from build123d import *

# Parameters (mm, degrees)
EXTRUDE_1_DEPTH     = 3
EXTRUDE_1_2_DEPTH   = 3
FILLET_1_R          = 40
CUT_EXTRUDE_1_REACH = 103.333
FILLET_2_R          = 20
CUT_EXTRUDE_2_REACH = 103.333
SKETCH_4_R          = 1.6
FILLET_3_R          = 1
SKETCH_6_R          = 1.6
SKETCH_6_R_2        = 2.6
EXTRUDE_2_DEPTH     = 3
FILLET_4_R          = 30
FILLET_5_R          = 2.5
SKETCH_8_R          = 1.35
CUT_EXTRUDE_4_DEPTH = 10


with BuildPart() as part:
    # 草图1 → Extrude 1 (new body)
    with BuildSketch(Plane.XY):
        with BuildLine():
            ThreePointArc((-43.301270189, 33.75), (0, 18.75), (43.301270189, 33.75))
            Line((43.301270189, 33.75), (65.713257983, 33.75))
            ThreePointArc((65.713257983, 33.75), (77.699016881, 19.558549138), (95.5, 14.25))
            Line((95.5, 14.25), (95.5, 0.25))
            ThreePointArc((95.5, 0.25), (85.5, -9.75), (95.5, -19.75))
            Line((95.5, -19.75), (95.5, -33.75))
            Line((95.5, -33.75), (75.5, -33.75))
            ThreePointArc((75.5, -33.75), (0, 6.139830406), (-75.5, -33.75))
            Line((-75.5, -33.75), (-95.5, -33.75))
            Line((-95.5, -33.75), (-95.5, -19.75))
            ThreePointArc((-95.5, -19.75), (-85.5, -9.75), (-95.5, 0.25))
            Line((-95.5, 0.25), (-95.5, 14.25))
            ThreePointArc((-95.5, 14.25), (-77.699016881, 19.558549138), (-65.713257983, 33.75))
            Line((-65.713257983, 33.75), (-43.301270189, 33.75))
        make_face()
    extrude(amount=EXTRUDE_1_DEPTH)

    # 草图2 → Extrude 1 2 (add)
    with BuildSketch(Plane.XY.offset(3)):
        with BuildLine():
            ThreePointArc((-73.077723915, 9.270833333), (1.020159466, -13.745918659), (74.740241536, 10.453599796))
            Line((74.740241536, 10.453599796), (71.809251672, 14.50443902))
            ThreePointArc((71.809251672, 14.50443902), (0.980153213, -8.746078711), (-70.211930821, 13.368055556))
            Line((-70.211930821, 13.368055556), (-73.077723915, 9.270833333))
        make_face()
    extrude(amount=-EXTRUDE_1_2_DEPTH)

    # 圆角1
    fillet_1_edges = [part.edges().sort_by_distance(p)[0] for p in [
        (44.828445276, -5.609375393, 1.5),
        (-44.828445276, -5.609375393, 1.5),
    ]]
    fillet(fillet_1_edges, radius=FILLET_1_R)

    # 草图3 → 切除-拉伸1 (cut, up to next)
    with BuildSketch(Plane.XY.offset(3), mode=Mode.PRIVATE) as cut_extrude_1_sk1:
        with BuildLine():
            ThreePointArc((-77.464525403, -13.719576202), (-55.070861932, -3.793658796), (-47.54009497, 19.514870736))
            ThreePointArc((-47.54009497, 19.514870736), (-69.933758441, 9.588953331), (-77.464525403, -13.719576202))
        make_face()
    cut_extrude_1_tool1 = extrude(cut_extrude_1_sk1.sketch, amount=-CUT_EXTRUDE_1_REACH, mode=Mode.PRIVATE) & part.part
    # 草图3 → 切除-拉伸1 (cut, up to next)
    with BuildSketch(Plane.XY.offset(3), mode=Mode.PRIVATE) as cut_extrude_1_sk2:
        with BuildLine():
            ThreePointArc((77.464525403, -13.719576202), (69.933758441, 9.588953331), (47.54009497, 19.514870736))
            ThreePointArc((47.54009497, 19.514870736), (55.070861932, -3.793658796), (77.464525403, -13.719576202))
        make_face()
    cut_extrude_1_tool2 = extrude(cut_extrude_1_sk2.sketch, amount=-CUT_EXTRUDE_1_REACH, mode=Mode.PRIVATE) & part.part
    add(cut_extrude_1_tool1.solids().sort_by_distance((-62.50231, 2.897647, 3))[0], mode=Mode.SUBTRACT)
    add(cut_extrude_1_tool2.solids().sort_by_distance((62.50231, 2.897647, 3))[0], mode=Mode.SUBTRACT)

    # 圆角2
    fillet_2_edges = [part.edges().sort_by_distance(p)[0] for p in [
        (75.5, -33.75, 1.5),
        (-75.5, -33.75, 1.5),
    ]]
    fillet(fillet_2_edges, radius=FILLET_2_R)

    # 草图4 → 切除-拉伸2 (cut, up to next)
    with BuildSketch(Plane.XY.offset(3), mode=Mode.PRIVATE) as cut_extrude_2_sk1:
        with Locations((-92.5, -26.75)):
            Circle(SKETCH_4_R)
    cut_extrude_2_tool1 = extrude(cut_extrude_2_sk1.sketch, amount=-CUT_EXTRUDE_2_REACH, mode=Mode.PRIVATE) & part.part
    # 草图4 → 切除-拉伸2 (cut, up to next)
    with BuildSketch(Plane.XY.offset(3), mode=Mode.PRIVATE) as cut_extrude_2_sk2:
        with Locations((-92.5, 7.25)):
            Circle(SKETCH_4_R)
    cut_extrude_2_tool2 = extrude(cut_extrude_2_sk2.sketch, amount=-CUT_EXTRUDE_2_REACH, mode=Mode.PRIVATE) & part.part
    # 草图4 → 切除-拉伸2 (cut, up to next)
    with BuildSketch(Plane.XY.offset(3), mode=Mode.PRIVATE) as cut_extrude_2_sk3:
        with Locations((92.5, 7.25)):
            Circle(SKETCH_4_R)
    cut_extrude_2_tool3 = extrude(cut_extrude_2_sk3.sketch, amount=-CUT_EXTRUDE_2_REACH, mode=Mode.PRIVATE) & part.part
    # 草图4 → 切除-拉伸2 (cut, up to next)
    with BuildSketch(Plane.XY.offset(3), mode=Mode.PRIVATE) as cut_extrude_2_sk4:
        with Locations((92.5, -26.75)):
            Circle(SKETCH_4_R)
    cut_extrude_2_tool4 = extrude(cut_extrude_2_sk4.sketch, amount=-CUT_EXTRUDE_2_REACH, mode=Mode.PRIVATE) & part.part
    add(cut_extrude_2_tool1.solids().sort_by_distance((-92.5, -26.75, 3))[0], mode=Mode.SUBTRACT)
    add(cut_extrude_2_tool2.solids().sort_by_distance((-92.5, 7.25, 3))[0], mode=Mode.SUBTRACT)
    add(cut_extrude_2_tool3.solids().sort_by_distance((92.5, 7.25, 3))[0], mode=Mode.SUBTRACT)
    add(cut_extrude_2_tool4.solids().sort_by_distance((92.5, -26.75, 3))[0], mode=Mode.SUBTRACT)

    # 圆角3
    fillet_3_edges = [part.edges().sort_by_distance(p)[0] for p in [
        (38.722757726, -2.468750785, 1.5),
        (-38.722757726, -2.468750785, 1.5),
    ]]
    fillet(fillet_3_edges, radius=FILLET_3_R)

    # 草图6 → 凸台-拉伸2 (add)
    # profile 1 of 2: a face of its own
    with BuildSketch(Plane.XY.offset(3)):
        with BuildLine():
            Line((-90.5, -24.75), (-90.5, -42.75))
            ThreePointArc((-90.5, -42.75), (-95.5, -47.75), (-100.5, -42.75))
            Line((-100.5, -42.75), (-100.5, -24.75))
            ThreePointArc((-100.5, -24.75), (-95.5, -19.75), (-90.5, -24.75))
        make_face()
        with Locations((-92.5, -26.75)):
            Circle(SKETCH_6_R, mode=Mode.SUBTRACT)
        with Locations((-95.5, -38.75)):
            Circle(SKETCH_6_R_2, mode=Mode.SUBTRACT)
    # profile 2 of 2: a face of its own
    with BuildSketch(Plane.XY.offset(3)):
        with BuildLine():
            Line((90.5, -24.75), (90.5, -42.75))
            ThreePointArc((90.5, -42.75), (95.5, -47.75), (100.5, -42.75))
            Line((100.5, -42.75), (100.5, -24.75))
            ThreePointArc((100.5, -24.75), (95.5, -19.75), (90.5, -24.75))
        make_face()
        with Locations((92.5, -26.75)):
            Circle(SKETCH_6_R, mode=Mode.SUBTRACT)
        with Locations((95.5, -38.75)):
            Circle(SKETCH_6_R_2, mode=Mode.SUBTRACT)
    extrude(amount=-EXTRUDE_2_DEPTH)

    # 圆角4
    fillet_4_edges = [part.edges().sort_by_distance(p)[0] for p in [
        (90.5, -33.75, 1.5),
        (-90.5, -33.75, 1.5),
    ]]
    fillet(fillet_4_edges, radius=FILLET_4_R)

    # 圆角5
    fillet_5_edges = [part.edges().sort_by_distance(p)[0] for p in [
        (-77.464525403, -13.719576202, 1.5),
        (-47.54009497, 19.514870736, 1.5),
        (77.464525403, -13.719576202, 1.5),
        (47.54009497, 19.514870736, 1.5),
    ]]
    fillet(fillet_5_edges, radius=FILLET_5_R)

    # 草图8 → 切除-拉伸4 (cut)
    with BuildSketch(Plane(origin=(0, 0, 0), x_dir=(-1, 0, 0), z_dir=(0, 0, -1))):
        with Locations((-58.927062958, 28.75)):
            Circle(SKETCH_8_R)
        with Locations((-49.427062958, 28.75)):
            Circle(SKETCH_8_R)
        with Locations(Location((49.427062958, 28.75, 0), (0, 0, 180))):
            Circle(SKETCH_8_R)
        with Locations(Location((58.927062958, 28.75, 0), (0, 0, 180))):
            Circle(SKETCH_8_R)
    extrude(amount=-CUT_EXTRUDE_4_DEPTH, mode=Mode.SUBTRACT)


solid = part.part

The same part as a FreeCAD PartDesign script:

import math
import FreeCAD as App
import Part
import Sketcher


def edges_at(feature, points):
    """Names of the edges that pass closest to the given points."""
    edges = feature.Shape.Edges
    near = lambda p: min(range(len(edges)), key=lambda i: edges[i].distToShape(Part.Vertex(*p))[0])
    return sorted({f"Edge{near(p) + 1}" for p in points})

doc = App.newDocument("Part")
body = doc.addObject("PartDesign::Body", "Body")

# Sketch on XY plane
sketch1 = body.newObject("Sketcher::SketchObject", "Sketch")
sketch1.AttachmentSupport = (doc.getObject("XY_Plane"), [""])
sketch1.MapMode = "FlatFace"
sketch1.addGeometry([
    Part.ArcOfCircle(Part.Circle(App.Vector(0, 89, 0), App.Vector(0, 0, 1), 70), math.radians(-128), math.radians(-52)),  # 0
    Part.LineSegment(App.Vector(-43, 34, 0), App.Vector(-66, 34, 0)),  # 1
    Part.ArcOfCircle(Part.Circle(App.Vector(-96, 47, 0), App.Vector(0, 0, 1), 33), math.radians(-90), math.radians(-24)),  # 2
    Part.LineSegment(App.Vector(-96, 14, 0), App.Vector(-96, 0, 0)),  # 3
    Part.ArcOfCircle(Part.Circle(App.Vector(-96, -10, 0), App.Vector(0, 0, 1), 10), math.radians(-90), math.radians(90)),  # 4
    Part.LineSegment(App.Vector(-96, -20, 0), App.Vector(-96, -34, 0)),  # 5
    Part.LineSegment(App.Vector(-96, -34, 0), App.Vector(-76, -34, 0)),  # 6
    Part.ArcOfCircle(Part.Circle(App.Vector(0, -85, 0), App.Vector(0, 0, 1), 91), math.radians(34), math.radians(146)),  # 7
    Part.LineSegment(App.Vector(76, -34, 0), App.Vector(96, -34, 0)),  # 8
    Part.LineSegment(App.Vector(96, -34, 0), App.Vector(96, -20, 0)),  # 9
    Part.ArcOfCircle(Part.Circle(App.Vector(96, -10, 0), App.Vector(0, 0, 1), 10), math.radians(90), math.radians(270)),  # 10
    Part.LineSegment(App.Vector(96, 0, 0), App.Vector(96, 14, 0)),  # 11
    Part.ArcOfCircle(Part.Circle(App.Vector(96, 47, 0), App.Vector(0, 0, 1), 33), math.radians(-156), math.radians(-90)),  # 12
    Part.LineSegment(App.Vector(66, 34, 0), App.Vector(43, 34, 0)),  # 13
], False)
sketch1.addConstraint([
    Sketcher.Constraint("Coincident", 0, 1, 1, 1),
    Sketcher.Constraint("Coincident", 1, 2, 2, 2),
    Sketcher.Constraint("Coincident", 2, 1, 3, 1),
    Sketcher.Constraint("Coincident", 3, 2, 4, 2),
    Sketcher.Constraint("Coincident", 4, 1, 5, 1),
    Sketcher.Constraint("Coincident", 5, 2, 6, 1),
    Sketcher.Constraint("Coincident", 6, 2, 7, 2),
    Sketcher.Constraint("Coincident", 7, 1, 8, 1),
    Sketcher.Constraint("Coincident", 8, 2, 9, 1),
    Sketcher.Constraint("Coincident", 9, 2, 10, 2),
    Sketcher.Constraint("Coincident", 10, 1, 11, 1),
    Sketcher.Constraint("Coincident", 11, 2, 12, 2),
    Sketcher.Constraint("Coincident", 12, 1, 13, 1),
    Sketcher.Constraint("Coincident", 13, 2, 0, 2),
    Sketcher.Constraint("Horizontal", 1),
    Sketcher.Constraint("Vertical", 3),
    Sketcher.Constraint("Vertical", 5),
    Sketcher.Constraint("Horizontal", 6),
    Sketcher.Constraint("Horizontal", 8),
    Sketcher.Constraint("Vertical", 9),
    Sketcher.Constraint("Vertical", 11),
    Sketcher.Constraint("Horizontal", 13),
    Sketcher.Constraint("Equal", 4, 10),
    Sketcher.Constraint("Equal", 2, 12),
    Sketcher.Constraint("Symmetric", 4, 3, 10, 3, -2),
    Sketcher.Constraint("Symmetric", 2, 3, 12, 3, -2),
    Sketcher.Constraint("Symmetric", 6, 2, 7, 1, -2),
    Sketcher.Constraint("Symmetric", 0, 1, 13, 2, -2),
    Sketcher.Constraint("Vertical", 2, 3, 4, 3),
    Sketcher.Constraint("Vertical", 4, 3, 2, 1),
    Sketcher.Constraint("Vertical", 3, 2, 4, 1),
    Sketcher.Constraint("Vertical", 12, 3, 8, 2),
    Sketcher.Constraint("Vertical", 9, 2, 10, 1),
    Sketcher.Constraint("Equal", 3, 5),
    Sketcher.Constraint("Radius", 0, 70.0),
    Sketcher.Constraint("Radius", 4, 10.0),
    Sketcher.Constraint("Radius", 2, 32.5),
    Sketcher.Constraint("DistanceX", 6, 1, 6, 2, 20.0),
    Sketcher.Constraint("DistanceY", 3, 2, 3, 1, 14.0),
    Sketcher.Constraint("DistanceY", 2, 3, 0, 3, 42.0),
    Sketcher.Constraint("DistanceX", 4, 3, 10, 3, 191.0),
    Sketcher.Constraint("DistanceY", 0, 1, 2, 3, 13.0),
    Sketcher.Constraint("DistanceY", -1, 1, 0, 3, 88.75),
    Sketcher.Constraint("Radius", 7, 91.39483),
])
pad1 = body.newObject("PartDesign::Pad", "Pad")
pad1.Profile = sketch1
pad1.Length = 3

# Sketch on XY plane
sketch2 = body.newObject("Sketcher::SketchObject", "Sketch001")
sketch2.AttachmentSupport = (doc.getObject("XY_Plane"), [""])
sketch2.MapMode = "FlatFace"
sketch2.AttachmentOffset = App.Placement(App.Vector(0, 0, 3), App.Rotation())
sketch2.addGeometry([
    Part.ArcOfCircle(Part.Circle(App.Vector(0, 114, 0), App.Vector(0, 0, 1), 127), math.radians(-125), math.radians(-54)),
    Part.LineSegment(App.Vector(75, 10, 0), App.Vector(72, 15, 0)),
    Part.ArcOfCircle(Part.Circle(App.Vector(0, 114, 0), App.Vector(0, 0, 1), 123), math.radians(-125), math.radians(-54)),
    Part.LineSegment(App.Vector(-70, 13, 0), App.Vector(-73, 9, 0)),
], False)
sketch2.addConstraint([
    Sketcher.Constraint("Coincident", 0, 2, 1, 1),
    Sketcher.Constraint("Coincident", 1, 2, 2, 2),
    Sketcher.Constraint("Coincident", 2, 1, 3, 1),
    Sketcher.Constraint("Coincident", 3, 2, 0, 1),
    Sketcher.Constraint("Coincident", 2, 3, 0, 3),
    Sketcher.Constraint("PointOnObject", 0, 3, -2),
    Sketcher.Constraint("Radius", 0, 127.5),
    Sketcher.Constraint("Radius", 2, 122.5),
    Sketcher.Constraint("DistanceY", -1, 1, 0, 3, 113.75),
    Sketcher.Constraint("DistanceY", -1, 1, 0, 2, 10.4536),
    Sketcher.Constraint("DistanceX", -1, 1, 1, 2, 71.809252),
    Sketcher.Constraint("DistanceX", 2, 1, -1, 1, 70.211931),
    Sketcher.Constraint("DistanceX", 3, 2, -1, 1, 73.077724),
])
pad2 = body.newObject("PartDesign::Pad", "Pad001")
pad2.Profile = sketch2
pad2.Length = 3
pad2.Reversed = True
doc.recompute()

fillet = body.newObject("PartDesign::Fillet", "Fillet")
fillet.Base = (pad2, edges_at(pad2, [(44.828, -5.609, 1.5), (-44.828, -5.609, 1.5)]))
fillet.Radius = 40

# Sketch on XY plane
sketch3 = body.newObject("Sketcher::SketchObject", "Sketch002")
sketch3.AttachmentSupport = (doc.getObject("XY_Plane"), [""])
sketch3.MapMode = "FlatFace"
sketch3.AttachmentOffset = App.Placement(App.Vector(0, 0, 3), App.Rotation())
sketch3.addGeometry([
    Part.ArcOfCircle(Part.Circle(App.Vector(-77, 16, 0), App.Vector(0, 0, 1), 30), math.radians(-90), math.radians(6)),
    Part.ArcOfCircle(Part.Circle(App.Vector(-48, -10, 0), App.Vector(0, 0, 1), 30), math.radians(90), math.radians(186)),
], False)
sketch3.addConstraint([
    Sketcher.Constraint("Coincident", 0, 1, 1, 2),
    Sketcher.Constraint("Coincident", 1, 1, 0, 2),
    Sketcher.Constraint("Equal", 0, 1),
    Sketcher.Constraint("Radius", 0, 30.0),
    Sketcher.Constraint("DistanceY", -1, 1, 0, 3, 16.280259),
    Sketcher.Constraint("DistanceY", -1, 1, 1, 1, 19.514871),
    Sketcher.Constraint("DistanceX", 0, 1, 0, 3, 0.099319),
    Sketcher.Constraint("DistanceX", 0, 3, -1, 1, 77.365207),
])
pocket1 = body.newObject("PartDesign::Pocket", "Pocket")
pocket1.Profile = sketch3
pocket1.Type = "UpToFirst"

# Sketch on XY plane
sketch4 = body.newObject("Sketcher::SketchObject", "Sketch003")
sketch4.AttachmentSupport = (doc.getObject("XY_Plane"), [""])
sketch4.MapMode = "FlatFace"
sketch4.AttachmentOffset = App.Placement(App.Vector(0, 0, 3), App.Rotation())
sketch4.addGeometry([
    Part.ArcOfCircle(Part.Circle(App.Vector(48, -10, 0), App.Vector(0, 0, 1), 30), math.radians(-6), math.radians(90)),
    Part.ArcOfCircle(Part.Circle(App.Vector(77, 16, 0), App.Vector(0, 0, 1), 30), math.radians(174), math.radians(270)),
], False)
sketch4.addConstraint([
    Sketcher.Constraint("Coincident", 0, 1, 1, 2),
    Sketcher.Constraint("Coincident", 1, 1, 0, 2),
    Sketcher.Constraint("Equal", 0, 1),
    Sketcher.Constraint("Radius", 0, 30.0),
    Sketcher.Constraint("DistanceY", -1, 1, 1, 3, 16.280259),
    Sketcher.Constraint("DistanceY", -1, 1, 1, 1, 19.514871),
    Sketcher.Constraint("DistanceX", 1, 3, 0, 1, 0.099319),
    Sketcher.Constraint("DistanceX", -1, 1, 0, 3, 47.639414),
])
pocket2 = body.newObject("PartDesign::Pocket", "Pocket001")
pocket2.Profile = sketch4
pocket2.Type = "UpToFirst"
doc.recompute()

fillet2 = body.newObject("PartDesign::Fillet", "Fillet001")
fillet2.Base = (pocket2, edges_at(pocket2, [(75.5, -33.75, 1.5), (-75.5, -33.75, 1.5)]))
fillet2.Radius = 20

# Sketch on XY plane
sketch5 = body.newObject("Sketcher::SketchObject", "Sketch004")
sketch5.AttachmentSupport = (doc.getObject("XY_Plane"), [""])
sketch5.MapMode = "FlatFace"
sketch5.AttachmentOffset = App.Placement(App.Vector(0, 0, 3), App.Rotation())
sketch5.addGeometry(Part.Circle(App.Vector(-92.5, -26.8, 0), App.Vector(0, 0, 1), 1.6), False)
sketch5.addConstraint([
    Sketcher.Constraint("Diameter", 0, 3.2),
    Sketcher.Constraint("DistanceX", 0, 3, -1, 1, 92.5),
    Sketcher.Constraint("DistanceY", 0, 3, -1, 1, 26.75),
])
pocket3 = body.newObject("PartDesign::Pocket", "Pocket002")
pocket3.Profile = sketch5
pocket3.Type = "UpToFirst"

# Sketch on XY plane
sketch6 = body.newObject("Sketcher::SketchObject", "Sketch005")
sketch6.AttachmentSupport = (doc.getObject("XY_Plane"), [""])
sketch6.MapMode = "FlatFace"
sketch6.AttachmentOffset = App.Placement(App.Vector(0, 0, 3), App.Rotation())
sketch6.addGeometry(Part.Circle(App.Vector(-92.5, 7.2, 0), App.Vector(0, 0, 1), 1.6), False)
sketch6.addConstraint([
    Sketcher.Constraint("Diameter", 0, 3.2),
    Sketcher.Constraint("DistanceX", 0, 3, -1, 1, 92.5),
    Sketcher.Constraint("DistanceY", -1, 1, 0, 3, 7.25),
])
pocket4 = body.newObject("PartDesign::Pocket", "Pocket003")
pocket4.Profile = sketch6
pocket4.Type = "UpToFirst"

# Sketch on XY plane
sketch7 = body.newObject("Sketcher::SketchObject", "Sketch006")
sketch7.AttachmentSupport = (doc.getObject("XY_Plane"), [""])
sketch7.MapMode = "FlatFace"
sketch7.AttachmentOffset = App.Placement(App.Vector(0, 0, 3), App.Rotation())
sketch7.addGeometry(Part.Circle(App.Vector(92.5, 7.2, 0), App.Vector(0, 0, 1), 1.6), False)
sketch7.addConstraint([
    Sketcher.Constraint("Diameter", 0, 3.2),
    Sketcher.Constraint("DistanceX", -1, 1, 0, 3, 92.5),
    Sketcher.Constraint("DistanceY", -1, 1, 0, 3, 7.25),
])
pocket5 = body.newObject("PartDesign::Pocket", "Pocket004")
pocket5.Profile = sketch7
pocket5.Type = "UpToFirst"

# Sketch on XY plane
sketch8 = body.newObject("Sketcher::SketchObject", "Sketch007")
sketch8.AttachmentSupport = (doc.getObject("XY_Plane"), [""])
sketch8.MapMode = "FlatFace"
sketch8.AttachmentOffset = App.Placement(App.Vector(0, 0, 3), App.Rotation())
sketch8.addGeometry(Part.Circle(App.Vector(92.5, -26.8, 0), App.Vector(0, 0, 1), 1.6), False)
sketch8.addConstraint([
    Sketcher.Constraint("Diameter", 0, 3.2),
    Sketcher.Constraint("DistanceX", -1, 1, 0, 3, 92.5),
    Sketcher.Constraint("DistanceY", 0, 3, -1, 1, 26.75),
])
pocket6 = body.newObject("PartDesign::Pocket", "Pocket005")
pocket6.Profile = sketch8
pocket6.Type = "UpToFirst"
doc.recompute()

fillet3 = body.newObject("PartDesign::Fillet", "Fillet002")
fillet3.Base = (pocket6, edges_at(pocket6, [(38.723, -2.469, 1.5), (-38.723, -2.469, 1.5)]))
fillet3.Radius = 1

# Sketch on XY plane
sketch9 = body.newObject("Sketcher::SketchObject", "Sketch008")
sketch9.AttachmentSupport = (doc.getObject("XY_Plane"), [""])
sketch9.MapMode = "FlatFace"
sketch9.AttachmentOffset = App.Placement(App.Vector(0, 0, 3), App.Rotation())
sketch9.addGeometry([
    Part.LineSegment(App.Vector(-90.5, -42.8, 0), App.Vector(-90.5, -24.8, 0)),  # 0
    Part.ArcOfCircle(Part.Circle(App.Vector(-95.5, -24.8, 0), App.Vector(0, 0, 1), 5), math.radians(0), math.radians(180)),  # 1
    Part.LineSegment(App.Vector(-100.5, -24.8, 0), App.Vector(-100.5, -42.8, 0)),  # 2
    Part.ArcOfCircle(Part.Circle(App.Vector(-95.5, -42.8, 0), App.Vector(0, 0, 1), 5), math.radians(180), math.radians(360)),  # 3
    Part.Circle(App.Vector(-95.5, -38.8, 0), App.Vector(0, 0, 1), 2.6),  # 4
    Part.Circle(App.Vector(-92.5, -26.8, 0), App.Vector(0, 0, 1), 1.6),  # 5
    Part.LineSegment(App.Vector(90.5, -24.8, 0), App.Vector(90.5, -42.8, 0)),  # 6
    Part.ArcOfCircle(Part.Circle(App.Vector(95.5, -42.8, 0), App.Vector(0, 0, 1), 5), math.radians(180), math.radians(360)),  # 7
    Part.LineSegment(App.Vector(100.5, -42.8, 0), App.Vector(100.5, -24.8, 0)),  # 8
    Part.ArcOfCircle(Part.Circle(App.Vector(95.5, -24.8, 0), App.Vector(0, 0, 1), 5), math.radians(0), math.radians(180)),  # 9
    Part.Circle(App.Vector(95.5, -38.8, 0), App.Vector(0, 0, 1), 2.6),  # 10
    Part.Circle(App.Vector(92.5, -26.8, 0), App.Vector(0, 0, 1), 1.6),  # 11
], False)
sketch9.addConstraint([
    Sketcher.Constraint("Tangent", 0, 2, 1, 1),
    Sketcher.Constraint("Tangent", 1, 2, 2, 1),
    Sketcher.Constraint("Tangent", 2, 2, 3, 1),
    Sketcher.Constraint("Tangent", 3, 2, 0, 1),
    Sketcher.Constraint("Tangent", 6, 2, 7, 1),
    Sketcher.Constraint("Tangent", 7, 2, 8, 1),
    Sketcher.Constraint("Tangent", 8, 2, 9, 1),
    Sketcher.Constraint("Tangent", 9, 2, 6, 1),
    Sketcher.Constraint("Vertical", 0),
    Sketcher.Constraint("Vertical", 2),
    Sketcher.Constraint("Vertical", 6),
    Sketcher.Constraint("Vertical", 8),
    Sketcher.Constraint("Equal", 3, 7),
    Sketcher.Constraint("Equal", 4, 10),
    Sketcher.Constraint("Equal", 5, 11),
    Sketcher.Constraint("Symmetric", 3, 3, 7, 3, -2),
    Sketcher.Constraint("Symmetric", 4, 3, 10, 3, -2),
    Sketcher.Constraint("Symmetric", 5, 3, 11, 3, -2),
    Sketcher.Constraint("Horizontal", 1, 3, 9, 3),
    Sketcher.Constraint("Vertical", 3, 3, 4, 3),
    Sketcher.Constraint("Radius", 1, 5.0),
    Sketcher.Constraint("Diameter", 4, 5.2),
    Sketcher.Constraint("Diameter", 5, 3.2),
    Sketcher.Constraint("DistanceY", 0, 1, 0, 2, 18.0),
    Sketcher.Constraint("DistanceY", 3, 3, 4, 3, 4.0),
    Sketcher.Constraint("DistanceX", 1, 3, 5, 3, 3.0),
    Sketcher.Constraint("DistanceY", 5, 3, 1, 3, 2.0),
    Sketcher.Constraint("DistanceX", 5, 3, 7, 3, 188.0),
    Sketcher.Constraint("DistanceY", 1, 3, -1, 1, 24.75),
])
pad3 = body.newObject("PartDesign::Pad", "Pad002")
pad3.Profile = sketch9
pad3.Length = 3
pad3.Reversed = True
doc.recompute()

fillet4 = body.newObject("PartDesign::Fillet", "Fillet003")
fillet4.Base = (pad3, edges_at(pad3, [(90.5, -33.75, 1.5), (-90.5, -33.75, 1.5)]))
fillet4.Radius = 30
doc.recompute()

fillet5 = body.newObject("PartDesign::Fillet", "Fillet004")
fillet5.Base = (fillet4, edges_at(fillet4, [
    (-77.465, -13.72, 1.5),
    (-47.54, 19.515, 1.5),
    (77.465, -13.72, 1.5),
    (47.54, 19.515, 1.5),
]))
fillet5.Radius = 2.5

# Sketch on XY plane
sketch10 = body.newObject("Sketcher::SketchObject", "Sketch009")
sketch10.AttachmentSupport = (doc.getObject("XY_Plane"), [""])
sketch10.MapMode = "FlatFace"
sketch10.addGeometry([
    Part.Circle(App.Vector(58.9, 28.8, 0), App.Vector(0, 0, 1), 1.4),
    Part.Circle(App.Vector(49.4, 28.8, 0), App.Vector(0, 0, 1), 1.4),
    Part.Circle(App.Vector(-49.4, 28.8, 0), App.Vector(0, 0, 1), 1.4),
    Part.Circle(App.Vector(-58.9, 28.8, 0), App.Vector(0, 0, 1), 1.4),
], False)
sketch10.addConstraint([
    Sketcher.Constraint("Equal", 0, 1),
    Sketcher.Constraint("Equal", 1, 2),
    Sketcher.Constraint("Equal", 2, 3),
    Sketcher.Constraint("Symmetric", 1, 3, 2, 3, -2),
    Sketcher.Constraint("Symmetric", 0, 3, 3, 3, -2),
    Sketcher.Constraint("Horizontal", 0, 3, 1, 3),
    Sketcher.Constraint("Diameter", 0, 2.7),
    Sketcher.Constraint("DistanceX", 1, 3, 0, 3, 9.5),
    Sketcher.Constraint("DistanceY", -1, 1, 0, 3, 28.75),
    Sketcher.Constraint("DistanceX", -1, 1, 0, 3, 58.927063),
])
pocket7 = body.newObject("PartDesign::Pocket", "Pocket006")
pocket7.Profile = sketch10
pocket7.Length = 10
pocket7.Reversed = True

doc.recompute()
